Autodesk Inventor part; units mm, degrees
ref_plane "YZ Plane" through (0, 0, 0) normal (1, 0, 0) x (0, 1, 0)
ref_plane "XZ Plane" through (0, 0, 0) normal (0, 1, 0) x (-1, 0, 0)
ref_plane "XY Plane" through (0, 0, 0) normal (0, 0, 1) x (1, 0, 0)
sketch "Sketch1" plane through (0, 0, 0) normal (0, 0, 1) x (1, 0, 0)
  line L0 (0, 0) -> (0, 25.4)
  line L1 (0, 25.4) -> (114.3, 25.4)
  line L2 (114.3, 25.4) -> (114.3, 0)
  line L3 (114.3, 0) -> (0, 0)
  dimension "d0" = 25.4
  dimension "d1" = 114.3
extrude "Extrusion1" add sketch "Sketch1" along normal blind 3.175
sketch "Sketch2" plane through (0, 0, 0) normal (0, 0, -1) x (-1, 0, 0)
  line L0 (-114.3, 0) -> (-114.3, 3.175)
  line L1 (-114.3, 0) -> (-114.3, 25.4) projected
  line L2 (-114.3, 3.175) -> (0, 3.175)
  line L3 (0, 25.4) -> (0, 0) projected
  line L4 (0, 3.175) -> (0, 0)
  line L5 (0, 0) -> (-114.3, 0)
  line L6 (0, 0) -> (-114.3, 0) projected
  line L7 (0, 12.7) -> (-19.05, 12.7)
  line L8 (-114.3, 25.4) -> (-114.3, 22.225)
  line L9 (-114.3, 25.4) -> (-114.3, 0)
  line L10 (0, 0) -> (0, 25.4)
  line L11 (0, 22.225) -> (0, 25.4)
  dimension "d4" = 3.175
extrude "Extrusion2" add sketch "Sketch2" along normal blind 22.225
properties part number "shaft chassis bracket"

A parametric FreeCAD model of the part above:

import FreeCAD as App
import Part
import Sketcher

V = App.Vector
Q = App.Units.Quantity


def add_polygon(sketch, points):
    """Adds a closed chain of lines whose ends are joined by coincident constraints."""
    first, n = sketch.GeometryCount, len(points)
    for a, b in zip(points, points[1:] + points[:1]):
        sketch.addGeometry(Part.LineSegment(App.Vector(*a, 0), App.Vector(*b, 0)), False)
    for i in range(n):
        sketch.addConstraint(Sketcher.Constraint("Coincident", first + i, 2, first + (i + 1) % n, 1))

doc = App.newDocument("Part")
params = doc.addObject("Spreadsheet::Sheet", "Params")
for row, (alias, value) in enumerate([
    ("sketch1_height", "1 in"),
    ("sketch1_width", "4.5 in"),
    ("pad1_length", "0.125 in"),
    ("sketch2_height", "0.125 in"),
    ("sketch2_width", "4.5 in"),
    ("pad2_length", "0.875 in"),
], start=1):
    params.set(f"A{row}", alias)
    params.set(f"B{row}", "=" + value)
    params.setAlias(f"B{row}", alias)

body = doc.addObject("PartDesign::Body", "Body")

# Sketch on XY plane
sketch1 = body.newObject("Sketcher::SketchObject", "Sketch")
sketch1.AttachmentSupport = (doc.getObject("XY_Plane"), [""])
sketch1.MapMode = "FlatFace"
add_polygon(sketch1, [(0, 25), (0, 0), (114, 0), (114, 25)])  # lines 0-3
sketch1.addConstraint([
    Sketcher.Constraint("Vertical", 0),
    Sketcher.Constraint("Horizontal", 1),
    Sketcher.Constraint("Vertical", 2),
    Sketcher.Constraint("Horizontal", 3),
    Sketcher.Constraint("Coincident", 0, 2, -1, 1),
    Sketcher.Constraint("DistanceY", 0, 2, 0, 1, Q("1 in")),
    Sketcher.Constraint("DistanceX", 1, 1, 1, 2, Q("4.5 in")),
])
sketch1.setExpression("Constraints[9]", "Params.sketch1_height")
sketch1.setExpression("Constraints[10]", "Params.sketch1_width")
pad1 = body.newObject("PartDesign::Pad", "Pad")
pad1.Profile = sketch1
pad1.setExpression("Length", "Params.pad1_length")

# Sketch on XY plane
sketch2 = body.newObject("Sketcher::SketchObject", "Sketch001")
sketch2.AttachmentSupport = (doc.getObject("XY_Plane"), [""])
sketch2.MapMode = "FlatFace"
add_polygon(sketch2, [(114.3, 3.2), (114.3, 0), (0, 0), (0, 3.2)])  # lines 0-3
sketch2.addConstraint([
    Sketcher.Constraint("Vertical", 0),
    Sketcher.Constraint("Horizontal", 1),
    Sketcher.Constraint("Vertical", 2),
    Sketcher.Constraint("Horizontal", 3),
    Sketcher.Constraint("Coincident", 1, 2, -1, 1),
    Sketcher.Constraint("DistanceY", 0, 2, 0, 1, Q("0.125 in")),
    Sketcher.Constraint("DistanceX", 1, 2, 1, 1, Q("4.5 in")),
])
sketch2.setExpression("Constraints[9]", "Params.sketch2_height")
sketch2.setExpression("Constraints[10]", "Params.sketch2_width")
pad2 = body.newObject("PartDesign::Pad", "Pad001")
pad2.Profile = sketch2
pad2.setExpression("Length", "Params.pad2_length")
pad2.Reversed = True

doc.recompute()
